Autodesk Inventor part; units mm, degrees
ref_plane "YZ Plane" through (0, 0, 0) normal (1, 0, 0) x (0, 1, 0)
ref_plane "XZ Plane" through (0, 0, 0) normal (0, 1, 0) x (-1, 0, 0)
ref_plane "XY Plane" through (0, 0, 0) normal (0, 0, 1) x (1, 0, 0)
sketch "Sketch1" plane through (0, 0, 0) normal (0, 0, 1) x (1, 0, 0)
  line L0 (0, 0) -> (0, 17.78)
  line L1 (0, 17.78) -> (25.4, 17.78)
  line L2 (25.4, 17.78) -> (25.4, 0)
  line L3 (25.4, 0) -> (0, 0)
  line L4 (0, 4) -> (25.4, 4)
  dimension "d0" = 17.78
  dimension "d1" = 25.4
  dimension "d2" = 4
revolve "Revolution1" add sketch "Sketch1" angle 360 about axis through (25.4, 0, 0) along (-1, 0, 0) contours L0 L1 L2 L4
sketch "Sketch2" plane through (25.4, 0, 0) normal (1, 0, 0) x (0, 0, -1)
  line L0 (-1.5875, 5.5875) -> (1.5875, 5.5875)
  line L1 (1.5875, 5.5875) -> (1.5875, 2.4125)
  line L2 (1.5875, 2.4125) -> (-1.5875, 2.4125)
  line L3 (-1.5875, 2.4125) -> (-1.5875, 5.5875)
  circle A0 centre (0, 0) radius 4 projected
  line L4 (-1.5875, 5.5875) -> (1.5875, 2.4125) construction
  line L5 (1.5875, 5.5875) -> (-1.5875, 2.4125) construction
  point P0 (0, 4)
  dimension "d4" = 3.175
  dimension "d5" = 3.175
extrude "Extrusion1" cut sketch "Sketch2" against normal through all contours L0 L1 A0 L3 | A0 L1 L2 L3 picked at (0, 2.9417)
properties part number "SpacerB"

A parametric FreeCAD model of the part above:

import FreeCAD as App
import Part
import Sketcher
from FreeCAD import Vector
Q = App.Units.Quantity

doc = App.newDocument("Part")
params = doc.addObject("Spreadsheet::Sheet", "Params")
for row, (alias, value) in enumerate([
    ("sketch1_width", "1 in"),
    ("revolution_angle", "360 deg"),
    ("sketch2_width", "0.125 in"),
], start=1):
    params.set(f"A{row}", alias)
    params.set(f"B{row}", "=" + value)
    params.setAlias(f"B{row}", alias)

body = doc.addObject("PartDesign::Body", "Body")

# Sketch on XY plane
sketch1 = body.newObject("Sketcher::SketchObject", "Sketch")
sketch1.AttachmentSupport = (doc.getObject("XY_Plane"), [""])
sketch1.MapMode = "FlatFace"
sketch1.addGeometry([
    Part.LineSegment(Vector(0, 17.78, 0), Vector(0, 4, 0)),
    Part.LineSegment(Vector(0, 4, 0), Vector(25.4, 4, 0)),
    Part.LineSegment(Vector(25.4, 4, 0), Vector(25.4, 17.78, 0)),
    Part.LineSegment(Vector(25.4, 17.78, 0), Vector(0, 17.78, 0)),
], False)
sketch1.addConstraint([
    Sketcher.Constraint("Coincident", 0, 2, 1, 1),
    Sketcher.Constraint("Coincident", 1, 2, 2, 1),
    Sketcher.Constraint("Coincident", 2, 2, 3, 1),
    Sketcher.Constraint("Coincident", 3, 2, 0, 1),
    Sketcher.Constraint("Vertical", 0),
    Sketcher.Constraint("Horizontal", 1),
    Sketcher.Constraint("Vertical", 2),
    Sketcher.Constraint("Horizontal", 3),
    Sketcher.Constraint("PointOnObject", 0, 2, -2),
    Sketcher.Constraint("DistanceX", 1, 1, 1, 2, Q("1 in")),
    Sketcher.Constraint("DistanceY", -1, 1, 2, 2, Q("0.7 in")),
    Sketcher.Constraint("DistanceY", -1, 1, 0, 2, Q("4 mm")),
])
sketch1.setExpression("Constraints[9]", "Params.sketch1_width")
revolution = body.newObject("PartDesign::Revolution", "Revolution")
revolution.Profile = sketch1
revolution.ReferenceAxis = (sketch1, ["H_Axis"])
revolution.setExpression("Angle", "Params.revolution_angle")

# Sketch on YZ plane
sketch2 = body.newObject("Sketcher::SketchObject", "Sketch001")
sketch2.AttachmentSupport = (doc.getObject("YZ_Plane"), [""])
sketch2.MapMode = "FlatFace"
sketch2.AttachmentOffset = App.Placement(Vector(0, 0, 1 * 25.4), App.Rotation())
sketch2.addGeometry([
    Part.LineSegment(Vector(5.5875, -1.5875, 0), Vector(5.5875, 1.5875, 0)),
    Part.LineSegment(Vector(5.5875, 1.5875, 0), Vector(2.4125, 1.5875, 0)),
    Part.LineSegment(Vector(2.4125, 1.5875, 0), Vector(2.4125, -1.5875, 0)),
    Part.LineSegment(Vector(2.4125, -1.5875, 0), Vector(5.5875, -1.5875, 0)),
], False)
sketch2.addConstraint([
    Sketcher.Constraint("Coincident", 0, 2, 1, 1),
    Sketcher.Constraint("Coincident", 1, 2, 2, 1),
    Sketcher.Constraint("Coincident", 2, 2, 3, 1),
    Sketcher.Constraint("Coincident", 3, 2, 0, 1),
    Sketcher.Constraint("Vertical", 0),
    Sketcher.Constraint("Horizontal", 1),
    Sketcher.Constraint("Vertical", 2),
    Sketcher.Constraint("Horizontal", 3),
    Sketcher.Constraint("Equal", 3, 0),
    Sketcher.Constraint("DistanceX", 1, 2, 1, 1, Q("0.125 in")),
    Sketcher.Constraint("DistanceY", -1, 1, 0, 2, Q("0.0625 in")),
    Sketcher.Constraint("DistanceX", -1, 1, 0, 2, Q("5.5875 mm")),
])
sketch2.setExpression("Constraints[9]", "Params.sketch2_width")
pocket1 = body.newObject("PartDesign::Pocket", "Pocket")
pocket1.Profile = sketch2
pocket1.Type = "ThroughAll"

doc.recompute()
